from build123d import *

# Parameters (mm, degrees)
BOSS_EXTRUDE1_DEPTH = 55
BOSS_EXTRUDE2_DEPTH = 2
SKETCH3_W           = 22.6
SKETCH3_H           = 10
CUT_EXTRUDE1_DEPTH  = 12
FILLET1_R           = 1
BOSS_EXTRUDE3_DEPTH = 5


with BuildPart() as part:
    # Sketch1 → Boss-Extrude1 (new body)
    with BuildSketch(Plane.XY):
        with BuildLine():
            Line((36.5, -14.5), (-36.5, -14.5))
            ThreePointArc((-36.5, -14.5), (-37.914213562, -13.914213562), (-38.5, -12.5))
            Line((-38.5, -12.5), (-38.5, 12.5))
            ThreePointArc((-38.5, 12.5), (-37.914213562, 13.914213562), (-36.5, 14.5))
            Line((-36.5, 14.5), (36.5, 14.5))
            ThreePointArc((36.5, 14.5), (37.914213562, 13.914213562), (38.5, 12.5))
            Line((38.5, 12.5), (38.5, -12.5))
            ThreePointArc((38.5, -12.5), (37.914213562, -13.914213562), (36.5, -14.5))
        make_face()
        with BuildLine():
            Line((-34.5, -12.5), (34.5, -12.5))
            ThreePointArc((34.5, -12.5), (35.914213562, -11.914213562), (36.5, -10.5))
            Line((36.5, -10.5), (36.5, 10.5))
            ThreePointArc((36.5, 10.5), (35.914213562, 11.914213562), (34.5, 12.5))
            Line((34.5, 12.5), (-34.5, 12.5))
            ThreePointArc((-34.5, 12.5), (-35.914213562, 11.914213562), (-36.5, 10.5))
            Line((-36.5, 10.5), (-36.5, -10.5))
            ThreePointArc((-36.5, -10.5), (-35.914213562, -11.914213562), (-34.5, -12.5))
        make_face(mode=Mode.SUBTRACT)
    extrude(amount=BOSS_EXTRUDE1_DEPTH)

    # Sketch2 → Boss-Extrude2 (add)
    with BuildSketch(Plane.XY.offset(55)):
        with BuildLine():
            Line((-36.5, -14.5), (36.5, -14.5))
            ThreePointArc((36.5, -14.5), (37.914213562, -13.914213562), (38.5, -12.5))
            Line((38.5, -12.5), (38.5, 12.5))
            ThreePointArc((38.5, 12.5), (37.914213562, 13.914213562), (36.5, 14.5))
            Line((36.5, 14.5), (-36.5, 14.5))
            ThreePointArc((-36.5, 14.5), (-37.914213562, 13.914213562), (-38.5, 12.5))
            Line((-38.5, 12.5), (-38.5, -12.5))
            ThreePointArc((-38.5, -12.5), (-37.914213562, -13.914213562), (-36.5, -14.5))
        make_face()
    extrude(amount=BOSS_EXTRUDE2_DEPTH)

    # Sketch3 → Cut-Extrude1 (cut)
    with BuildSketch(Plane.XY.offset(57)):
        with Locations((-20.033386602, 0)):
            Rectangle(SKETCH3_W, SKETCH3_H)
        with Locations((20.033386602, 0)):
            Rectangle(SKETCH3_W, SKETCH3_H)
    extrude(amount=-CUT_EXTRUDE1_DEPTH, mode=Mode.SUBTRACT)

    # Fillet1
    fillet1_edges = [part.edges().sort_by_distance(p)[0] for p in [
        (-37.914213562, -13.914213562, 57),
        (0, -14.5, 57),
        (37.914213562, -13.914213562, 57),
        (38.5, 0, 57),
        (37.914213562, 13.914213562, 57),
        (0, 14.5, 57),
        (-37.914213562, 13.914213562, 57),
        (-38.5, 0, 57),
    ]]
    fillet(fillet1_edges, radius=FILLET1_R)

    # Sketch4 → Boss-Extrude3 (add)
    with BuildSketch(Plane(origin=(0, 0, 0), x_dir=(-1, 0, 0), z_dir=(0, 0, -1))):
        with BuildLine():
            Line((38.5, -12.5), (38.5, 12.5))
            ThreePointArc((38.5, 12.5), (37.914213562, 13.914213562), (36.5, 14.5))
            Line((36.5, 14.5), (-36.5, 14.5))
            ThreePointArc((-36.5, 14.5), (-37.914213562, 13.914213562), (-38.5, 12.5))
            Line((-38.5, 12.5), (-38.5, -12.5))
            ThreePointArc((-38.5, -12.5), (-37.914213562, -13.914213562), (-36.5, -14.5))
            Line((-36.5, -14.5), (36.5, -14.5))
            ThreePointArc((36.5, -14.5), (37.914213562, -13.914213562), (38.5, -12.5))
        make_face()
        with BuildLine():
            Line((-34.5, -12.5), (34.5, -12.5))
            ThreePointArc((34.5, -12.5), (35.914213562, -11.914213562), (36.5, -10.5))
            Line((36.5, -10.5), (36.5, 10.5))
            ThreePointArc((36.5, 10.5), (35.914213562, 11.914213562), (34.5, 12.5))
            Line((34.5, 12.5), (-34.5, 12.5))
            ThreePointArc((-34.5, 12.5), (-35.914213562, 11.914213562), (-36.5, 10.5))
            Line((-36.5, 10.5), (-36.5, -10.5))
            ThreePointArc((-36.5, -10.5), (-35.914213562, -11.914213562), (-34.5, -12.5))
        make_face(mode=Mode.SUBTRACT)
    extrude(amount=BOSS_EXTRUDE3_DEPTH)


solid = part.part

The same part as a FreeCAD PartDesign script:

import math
import FreeCAD as App
import Part
import Sketcher

V = App.Vector


def edges_at(feature, points):
    """Names of the edges that pass closest to the given points."""
    edges = feature.Shape.Edges
    near = lambda p: min(range(len(edges)), key=lambda i: edges[i].distToShape(Part.Vertex(*p))[0])
    return sorted({f"Edge{near(p) + 1}" for p in points})

doc = App.newDocument("Part")
params = doc.addObject("Spreadsheet::Sheet", "Params")
for row, (alias, value) in enumerate([
    ("sketch1_radius", "2 mm"),
    ("sketch1_width", "73 mm"),
    ("sketch1_height", "25 mm"),
    ("pad1_length", "55 mm"),
    ("sketch2_radius", "2 mm"),
    ("sketch2_width", "73 mm"),
    ("sketch2_height", "25 mm"),
    ("pad2_length", "2 mm"),
    ("sketch3_height", "10 mm"),
    ("sketch3_width", "22.6 mm"),
    ("pocket1_length", "12 mm"),
    ("fillet_radius", "1 mm"),
    ("sketch4_radius", "2 mm"),
    ("sketch4_width", "73 mm"),
    ("sketch4_height", "25 mm"),
    ("pad3_length", "5 mm"),
], start=1):
    params.set(f"A{row}", alias)
    params.set(f"B{row}", "=" + value)
    params.setAlias(f"B{row}", alias)

body = doc.addObject("PartDesign::Body", "Body")

sketch1 = body.newObject("Sketcher::SketchObject", "Sketch")
sketch1.AttachmentSupport = (doc.getObject("XY_Plane"), [""])
sketch1.MapMode = "FlatFace"
sketch1.addGeometry(Part.LineSegment(V(-36.5, -14.5, 0), V(36.5, -14.5, 0)), False)
sketch1.addGeometry(Part.ArcOfCircle(Part.Circle(V(36.5, -12.5, 0), V(0, 0, 1), 2), math.radians(-90), math.radians(0)), False)
sketch1.addGeometry(Part.LineSegment(V(38.5, -12.5, 0), V(38.5, 12.5, 0)), False)
sketch1.addGeometry(Part.ArcOfCircle(Part.Circle(V(36.5, 12.5, 0), V(0, 0, 1), 2), math.radians(0), math.radians(90)), False)
sketch1.addGeometry(Part.LineSegment(V(36.5, 14.5, 0), V(-36.5, 14.5, 0)), False)
sketch1.addGeometry(Part.ArcOfCircle(Part.Circle(V(-36.5, 12.5, 0), V(0, 0, 1), 2), math.radians(90), math.radians(180)), False)
sketch1.addGeometry(Part.LineSegment(V(-38.5, 12.5, 0), V(-38.5, -12.5, 0)), False)
sketch1.addGeometry(Part.ArcOfCircle(Part.Circle(V(-36.5, -12.5, 0), V(0, 0, 1), 2), math.radians(-180), math.radians(-90)), False)
sketch1.addGeometry(Part.ArcOfCircle(Part.Circle(V(-34.5, -10.5, 0), V(0, 0, 1), 2), math.radians(-180), math.radians(-90)), False)
sketch1.addGeometry(Part.LineSegment(V(-36.5, -10.5, 0), V(-36.5, 10.5, 0)), False)
sketch1.addGeometry(Part.ArcOfCircle(Part.Circle(V(-34.5, 10.5, 0), V(0, 0, 1), 2), math.radians(90), math.radians(180)), False)
sketch1.addGeometry(Part.LineSegment(V(-34.5, 12.5, 0), V(34.5, 12.5, 0)), False)
sketch1.addGeometry(Part.ArcOfCircle(Part.Circle(V(34.5, 10.5, 0), V(0, 0, 1), 2), math.radians(0), math.radians(90)), False)
sketch1.addGeometry(Part.LineSegment(V(36.5, 10.5, 0), V(36.5, -10.5, 0)), False)
sketch1.addGeometry(Part.ArcOfCircle(Part.Circle(V(34.5, -10.5, 0), V(0, 0, 1), 2), math.radians(-90), math.radians(0)), False)
sketch1.addGeometry(Part.LineSegment(V(34.5, -12.5, 0), V(-34.5, -12.5, 0)), False)
sketch1.addConstraint(Sketcher.Constraint("Tangent", 0, 2, 1, 1))
sketch1.addConstraint(Sketcher.Constraint("Tangent", 1, 2, 2, 1))
sketch1.addConstraint(Sketcher.Constraint("Tangent", 2, 2, 3, 1))
sketch1.addConstraint(Sketcher.Constraint("Tangent", 3, 2, 4, 1))
sketch1.addConstraint(Sketcher.Constraint("Tangent", 4, 2, 5, 1))
sketch1.addConstraint(Sketcher.Constraint("Tangent", 5, 2, 6, 1))
sketch1.addConstraint(Sketcher.Constraint("Tangent", 6, 2, 7, 1))
sketch1.addConstraint(Sketcher.Constraint("Tangent", 7, 2, 0, 1))
sketch1.addConstraint(Sketcher.Constraint("Tangent", 8, 1, 9, 1))
sketch1.addConstraint(Sketcher.Constraint("Tangent", 9, 2, 10, 2))
sketch1.addConstraint(Sketcher.Constraint("Tangent", 10, 1, 11, 1))
sketch1.addConstraint(Sketcher.Constraint("Tangent", 11, 2, 12, 2))
sketch1.addConstraint(Sketcher.Constraint("Tangent", 12, 1, 13, 1))
sketch1.addConstraint(Sketcher.Constraint("Tangent", 13, 2, 14, 2))
sketch1.addConstraint(Sketcher.Constraint("Tangent", 14, 1, 15, 1))
sketch1.addConstraint(Sketcher.Constraint("Tangent", 15, 2, 8, 2))
sketch1.addConstraint(Sketcher.Constraint("Horizontal", 0))
sketch1.addConstraint(Sketcher.Constraint("Vertical", 2))
sketch1.addConstraint(Sketcher.Constraint("Horizontal", 4))
sketch1.addConstraint(Sketcher.Constraint("Vertical", 6))
sketch1.addConstraint(Sketcher.Constraint("Vertical", 9))
sketch1.addConstraint(Sketcher.Constraint("Horizontal", 11))
sketch1.addConstraint(Sketcher.Constraint("Vertical", 13))
sketch1.addConstraint(Sketcher.Constraint("Horizontal", 15))
sketch1.addConstraint(Sketcher.Constraint("Equal", 1, 3))
sketch1.addConstraint(Sketcher.Constraint("Equal", 3, 5))
sketch1.addConstraint(Sketcher.Constraint("Equal", 5, 7))
sketch1.addConstraint(Sketcher.Constraint("Equal", 7, 8))
sketch1.addConstraint(Sketcher.Constraint("Equal", 8, 10))
sketch1.addConstraint(Sketcher.Constraint("Equal", 10, 12))
sketch1.addConstraint(Sketcher.Constraint("Equal", 12, 14))
sketch1.addConstraint(Sketcher.Constraint("Symmetric", 1, 3, 5, 3, -1, 1))
sketch1.addConstraint(Sketcher.Constraint("Symmetric", 8, 3, 12, 3, -1, 1))
sketch1.addConstraint(Sketcher.Constraint("Horizontal", 5, 2, 10, 1))
sketch1.addConstraint(Sketcher.Constraint("Vertical", 7, 2, 8, 1))
sketch1.addConstraint(Sketcher.Constraint("Radius", 1, 2.0))
sketch1.addConstraint(Sketcher.Constraint("DistanceX", 0, 1, 0, 2, 73.0))
sketch1.addConstraint(Sketcher.Constraint("DistanceY", 2, 1, 2, 2, 25.0))
sketch1.setExpression("Constraints[35]", "Params.sketch1_radius")
sketch1.setExpression("Constraints[36]", "Params.sketch1_width")
sketch1.setExpression("Constraints[37]", "Params.sketch1_height")
pad1 = body.newObject("PartDesign::Pad", "Pad")
pad1.Profile = sketch1
pad1.setExpression("Length", "Params.pad1_length")

sketch2 = body.newObject("Sketcher::SketchObject", "Sketch001")
sketch2.AttachmentSupport = (doc.getObject("XY_Plane"), [""])
sketch2.MapMode = "FlatFace"
sketch2.AttachmentOffset = App.Placement(V(0, 0, 55), App.Rotation())
sketch2.addGeometry(Part.LineSegment(V(-36.5, -14.5, 0), V(36.5, -14.5, 0)), False)
sketch2.addGeometry(Part.ArcOfCircle(Part.Circle(V(36.5, -12.5, 0), V(0, 0, 1), 2), math.radians(-90), math.radians(0)), False)
sketch2.addGeometry(Part.LineSegment(V(38.5, -12.5, 0), V(38.5, 12.5, 0)), False)
sketch2.addGeometry(Part.ArcOfCircle(Part.Circle(V(36.5, 12.5, 0), V(0, 0, 1), 2), math.radians(0), math.radians(90)), False)
sketch2.addGeometry(Part.LineSegment(V(36.5, 14.5, 0), V(-36.5, 14.5, 0)), False)
sketch2.addGeometry(Part.ArcOfCircle(Part.Circle(V(-36.5, 12.5, 0), V(0, 0, 1), 2), math.radians(90), math.radians(180)), False)
sketch2.addGeometry(Part.LineSegment(V(-38.5, 12.5, 0), V(-38.5, -12.5, 0)), False)
sketch2.addGeometry(Part.ArcOfCircle(Part.Circle(V(-36.5, -12.5, 0), V(0, 0, 1), 2), math.radians(-180), math.radians(-90)), False)
sketch2.addConstraint(Sketcher.Constraint("Tangent", 0, 2, 1, 1))
sketch2.addConstraint(Sketcher.Constraint("Tangent", 1, 2, 2, 1))
sketch2.addConstraint(Sketcher.Constraint("Tangent", 2, 2, 3, 1))
sketch2.addConstraint(Sketcher.Constraint("Tangent", 3, 2, 4, 1))
sketch2.addConstraint(Sketcher.Constraint("Tangent", 4, 2, 5, 1))
sketch2.addConstraint(Sketcher.Constraint("Tangent", 5, 2, 6, 1))
sketch2.addConstraint(Sketcher.Constraint("Tangent", 6, 2, 7, 1))
sketch2.addConstraint(Sketcher.Constraint("Tangent", 7, 2, 0, 1))
sketch2.addConstraint(Sketcher.Constraint("Horizontal", 0))
sketch2.addConstraint(Sketcher.Constraint("Vertical", 2))
sketch2.addConstraint(Sketcher.Constraint("Horizontal", 4))
sketch2.addConstraint(Sketcher.Constraint("Vertical", 6))
sketch2.addConstraint(Sketcher.Constraint("Equal", 1, 3))
sketch2.addConstraint(Sketcher.Constraint("Equal", 3, 5))
sketch2.addConstraint(Sketcher.Constraint("Equal", 5, 7))
sketch2.addConstraint(Sketcher.Constraint("Symmetric", 1, 3, 5, 3, -1, 1))
sketch2.addConstraint(Sketcher.Constraint("Radius", 1, 2.0))
sketch2.addConstraint(Sketcher.Constraint("DistanceX", 0, 1, 0, 2, 73.0))
sketch2.addConstraint(Sketcher.Constraint("DistanceY", 2, 1, 2, 2, 25.0))
sketch2.setExpression("Constraints[16]", "Params.sketch2_radius")
sketch2.setExpression("Constraints[17]", "Params.sketch2_width")
sketch2.setExpression("Constraints[18]", "Params.sketch2_height")
pad2 = body.newObject("PartDesign::Pad", "Pad001")
pad2.Profile = sketch2
pad2.setExpression("Length", "Params.pad2_length")

sketch3 = body.newObject("Sketcher::SketchObject", "Sketch002")
sketch3.AttachmentSupport = (doc.getObject("XY_Plane"), [""])
sketch3.MapMode = "FlatFace"
sketch3.AttachmentOffset = App.Placement(V(0, 0, 57), App.Rotation())
sketch3.addGeometry(Part.LineSegment(V(-31, 5, 0), V(-31, -5, 0)), False)
sketch3.addGeometry(Part.LineSegment(V(-31, -5, 0), V(-9, -5, 0)), False)
sketch3.addGeometry(Part.LineSegment(V(-9, -5, 0), V(-9, 5, 0)), False)
sketch3.addGeometry(Part.LineSegment(V(-9, 5, 0), V(-31, 5, 0)), False)
sketch3.addGeometry(Part.LineSegment(V(9, 5, 0), V(9, -5, 0)), False)
sketch3.addGeometry(Part.LineSegment(V(9, -5, 0), V(31, -5, 0)), False)
sketch3.addGeometry(Part.LineSegment(V(31, -5, 0), V(31, 5, 0)), False)
sketch3.addGeometry(Part.LineSegment(V(31, 5, 0), V(9, 5, 0)), False)
sketch3.addConstraint(Sketcher.Constraint("Coincident", 0, 2, 1, 1))
sketch3.addConstraint(Sketcher.Constraint("Coincident", 1, 2, 2, 1))
sketch3.addConstraint(Sketcher.Constraint("Coincident", 2, 2, 3, 1))
sketch3.addConstraint(Sketcher.Constraint("Coincident", 3, 2, 0, 1))
sketch3.addConstraint(Sketcher.Constraint("Coincident", 4, 2, 5, 1))
sketch3.addConstraint(Sketcher.Constraint("Coincident", 5, 2, 6, 1))
sketch3.addConstraint(Sketcher.Constraint("Coincident", 6, 2, 7, 1))
sketch3.addConstraint(Sketcher.Constraint("Coincident", 7, 2, 4, 1))
sketch3.addConstraint(Sketcher.Constraint("Vertical", 0))
sketch3.addConstraint(Sketcher.Constraint("Horizontal", 1))
sketch3.addConstraint(Sketcher.Constraint("Vertical", 2))
sketch3.addConstraint(Sketcher.Constraint("Horizontal", 3))
sketch3.addConstraint(Sketcher.Constraint("Vertical", 4))
sketch3.addConstraint(Sketcher.Constraint("Horizontal", 5))
sketch3.addConstraint(Sketcher.Constraint("Vertical", 6))
sketch3.addConstraint(Sketcher.Constraint("Horizontal", 7))
sketch3.addConstraint(Sketcher.Constraint("Symmetric", 2, 2, 4, 2, -1, 1))
sketch3.addConstraint(Sketcher.Constraint("Symmetric", 0, 2, 6, 2, -1, 1))
sketch3.addConstraint(Sketcher.Constraint("Horizontal", 1, 2, 4, 2))
sketch3.addConstraint(Sketcher.Constraint("DistanceY", 0, 2, 0, 1, 10.0))
sketch3.addConstraint(Sketcher.Constraint("DistanceX", 1, 1, 1, 2, 22.6))
sketch3.addConstraint(Sketcher.Constraint("DistanceX", 0, 2, -1, 1, 31.333387))
sketch3.setExpression("Constraints[19]", "Params.sketch3_height")
sketch3.setExpression("Constraints[20]", "Params.sketch3_width")
pocket1 = body.newObject("PartDesign::Pocket", "Pocket")
pocket1.Profile = sketch3
pocket1.setExpression("Length", "Params.pocket1_length")
doc.recompute()

fillet = body.newObject("PartDesign::Fillet", "Fillet")
fillet.Base = (pocket1, edges_at(pocket1, [
    (-37.914, -13.914, 57),
    (0, -14.5, 57),
    (37.914, -13.914, 57),
    (38.5, 0, 57),
    (37.914, 13.914, 57),
    (0, 14.5, 57),
    (-37.914, 13.914, 57),
    (-38.5, 0, 57),
]))
fillet.setExpression("Radius", "Params.fillet_radius")

sketch4 = body.newObject("Sketcher::SketchObject", "Sketch003")
sketch4.AttachmentSupport = (doc.getObject("XY_Plane"), [""])
sketch4.MapMode = "FlatFace"
sketch4.addGeometry(Part.LineSegment(V(-38.5, -12.5, 0), V(-38.5, 12.5, 0)), False)
sketch4.addGeometry(Part.ArcOfCircle(Part.Circle(V(-36.5, 12.5, 0), V(0, 0, 1), 2), math.radians(90), math.radians(180)), False)
sketch4.addGeometry(Part.LineSegment(V(-36.5, 14.5, 0), V(36.5, 14.5, 0)), False)
sketch4.addGeometry(Part.ArcOfCircle(Part.Circle(V(36.5, 12.5, 0), V(0, 0, 1), 2), math.radians(0), math.radians(90)), False)
sketch4.addGeometry(Part.LineSegment(V(38.5, 12.5, 0), V(38.5, -12.5, 0)), False)
sketch4.addGeometry(Part.ArcOfCircle(Part.Circle(V(36.5, -12.5, 0), V(0, 0, 1), 2), math.radians(-90), math.radians(0)), False)
sketch4.addGeometry(Part.LineSegment(V(36.5, -14.5, 0), V(-36.5, -14.5, 0)), False)
sketch4.addGeometry(Part.ArcOfCircle(Part.Circle(V(-36.5, -12.5, 0), V(0, 0, 1), 2), math.radians(-180), math.radians(-90)), False)
sketch4.addGeometry(Part.LineSegment(V(-34.5, -12.5, 0), V(34.5, -12.5, 0)), False)
sketch4.addGeometry(Part.ArcOfCircle(Part.Circle(V(34.5, -10.5, 0), V(0, 0, 1), 2), math.radians(-90), math.radians(0)), False)
sketch4.addGeometry(Part.LineSegment(V(36.5, -10.5, 0), V(36.5, 10.5, 0)), False)
sketch4.addGeometry(Part.ArcOfCircle(Part.Circle(V(34.5, 10.5, 0), V(0, 0, 1), 2), math.radians(0), math.radians(90)), False)
sketch4.addGeometry(Part.LineSegment(V(34.5, 12.5, 0), V(-34.5, 12.5, 0)), False)
sketch4.addGeometry(Part.ArcOfCircle(Part.Circle(V(-34.5, 10.5, 0), V(0, 0, 1), 2), math.radians(90), math.radians(180)), False)
sketch4.addGeometry(Part.LineSegment(V(-36.5, 10.5, 0), V(-36.5, -10.5, 0)), False)
sketch4.addGeometry(Part.ArcOfCircle(Part.Circle(V(-34.5, -10.5, 0), V(0, 0, 1), 2), math.radians(-180), math.radians(-90)), False)
sketch4.addConstraint(Sketcher.Constraint("Tangent", 0, 2, 1, 2))
sketch4.addConstraint(Sketcher.Constraint("Tangent", 1, 1, 2, 1))
sketch4.addConstraint(Sketcher.Constraint("Tangent", 2, 2, 3, 2))
sketch4.addConstraint(Sketcher.Constraint("Tangent", 3, 1, 4, 1))
sketch4.addConstraint(Sketcher.Constraint("Tangent", 4, 2, 5, 2))
sketch4.addConstraint(Sketcher.Constraint("Tangent", 5, 1, 6, 1))
sketch4.addConstraint(Sketcher.Constraint("Tangent", 6, 2, 7, 2))
sketch4.addConstraint(Sketcher.Constraint("Tangent", 7, 1, 0, 1))
sketch4.addConstraint(Sketcher.Constraint("Tangent", 8, 2, 9, 1))
sketch4.addConstraint(Sketcher.Constraint("Tangent", 9, 2, 10, 1))
sketch4.addConstraint(Sketcher.Constraint("Tangent", 10, 2, 11, 1))
sketch4.addConstraint(Sketcher.Constraint("Tangent", 11, 2, 12, 1))
sketch4.addConstraint(Sketcher.Constraint("Tangent", 12, 2, 13, 1))
sketch4.addConstraint(Sketcher.Constraint("Tangent", 13, 2, 14, 1))
sketch4.addConstraint(Sketcher.Constraint("Tangent", 14, 2, 15, 1))
sketch4.addConstraint(Sketcher.Constraint("Tangent", 15, 2, 8, 1))
sketch4.addConstraint(Sketcher.Constraint("Vertical", 0))
sketch4.addConstraint(Sketcher.Constraint("Horizontal", 2))
sketch4.addConstraint(Sketcher.Constraint("Vertical", 4))
sketch4.addConstraint(Sketcher.Constraint("Horizontal", 6))
sketch4.addConstraint(Sketcher.Constraint("Horizontal", 8))
sketch4.addConstraint(Sketcher.Constraint("Vertical", 10))
sketch4.addConstraint(Sketcher.Constraint("Horizontal", 12))
sketch4.addConstraint(Sketcher.Constraint("Vertical", 14))
sketch4.addConstraint(Sketcher.Constraint("Equal", 1, 3))
sketch4.addConstraint(Sketcher.Constraint("Equal", 3, 5))
sketch4.addConstraint(Sketcher.Constraint("Equal", 5, 7))
sketch4.addConstraint(Sketcher.Constraint("Equal", 7, 9))
sketch4.addConstraint(Sketcher.Constraint("Equal", 9, 11))
sketch4.addConstraint(Sketcher.Constraint("Equal", 11, 13))
sketch4.addConstraint(Sketcher.Constraint("Equal", 13, 15))
sketch4.addConstraint(Sketcher.Constraint("Symmetric", 1, 3, 5, 3, -1, 1))
sketch4.addConstraint(Sketcher.Constraint("Symmetric", 9, 3, 13, 3, -1, 1))
sketch4.addConstraint(Sketcher.Constraint("Horizontal", 7, 1, 8, 2))
sketch4.addConstraint(Sketcher.Constraint("Vertical", 5, 1, 9, 2))
sketch4.addConstraint(Sketcher.Constraint("Radius", 1, 2.0))
sketch4.addConstraint(Sketcher.Constraint("DistanceX", 2, 1, 2, 2, 73.0))
sketch4.addConstraint(Sketcher.Constraint("DistanceY", 0, 1, 0, 2, 25.0))
sketch4.setExpression("Constraints[35]", "Params.sketch4_radius")
sketch4.setExpression("Constraints[36]", "Params.sketch4_width")
sketch4.setExpression("Constraints[37]", "Params.sketch4_height")
pad3 = body.newObject("PartDesign::Pad", "Pad002")
pad3.Profile = sketch4
pad3.setExpression("Length", "Params.pad3_length")
pad3.Reversed = True

doc.recompute()
